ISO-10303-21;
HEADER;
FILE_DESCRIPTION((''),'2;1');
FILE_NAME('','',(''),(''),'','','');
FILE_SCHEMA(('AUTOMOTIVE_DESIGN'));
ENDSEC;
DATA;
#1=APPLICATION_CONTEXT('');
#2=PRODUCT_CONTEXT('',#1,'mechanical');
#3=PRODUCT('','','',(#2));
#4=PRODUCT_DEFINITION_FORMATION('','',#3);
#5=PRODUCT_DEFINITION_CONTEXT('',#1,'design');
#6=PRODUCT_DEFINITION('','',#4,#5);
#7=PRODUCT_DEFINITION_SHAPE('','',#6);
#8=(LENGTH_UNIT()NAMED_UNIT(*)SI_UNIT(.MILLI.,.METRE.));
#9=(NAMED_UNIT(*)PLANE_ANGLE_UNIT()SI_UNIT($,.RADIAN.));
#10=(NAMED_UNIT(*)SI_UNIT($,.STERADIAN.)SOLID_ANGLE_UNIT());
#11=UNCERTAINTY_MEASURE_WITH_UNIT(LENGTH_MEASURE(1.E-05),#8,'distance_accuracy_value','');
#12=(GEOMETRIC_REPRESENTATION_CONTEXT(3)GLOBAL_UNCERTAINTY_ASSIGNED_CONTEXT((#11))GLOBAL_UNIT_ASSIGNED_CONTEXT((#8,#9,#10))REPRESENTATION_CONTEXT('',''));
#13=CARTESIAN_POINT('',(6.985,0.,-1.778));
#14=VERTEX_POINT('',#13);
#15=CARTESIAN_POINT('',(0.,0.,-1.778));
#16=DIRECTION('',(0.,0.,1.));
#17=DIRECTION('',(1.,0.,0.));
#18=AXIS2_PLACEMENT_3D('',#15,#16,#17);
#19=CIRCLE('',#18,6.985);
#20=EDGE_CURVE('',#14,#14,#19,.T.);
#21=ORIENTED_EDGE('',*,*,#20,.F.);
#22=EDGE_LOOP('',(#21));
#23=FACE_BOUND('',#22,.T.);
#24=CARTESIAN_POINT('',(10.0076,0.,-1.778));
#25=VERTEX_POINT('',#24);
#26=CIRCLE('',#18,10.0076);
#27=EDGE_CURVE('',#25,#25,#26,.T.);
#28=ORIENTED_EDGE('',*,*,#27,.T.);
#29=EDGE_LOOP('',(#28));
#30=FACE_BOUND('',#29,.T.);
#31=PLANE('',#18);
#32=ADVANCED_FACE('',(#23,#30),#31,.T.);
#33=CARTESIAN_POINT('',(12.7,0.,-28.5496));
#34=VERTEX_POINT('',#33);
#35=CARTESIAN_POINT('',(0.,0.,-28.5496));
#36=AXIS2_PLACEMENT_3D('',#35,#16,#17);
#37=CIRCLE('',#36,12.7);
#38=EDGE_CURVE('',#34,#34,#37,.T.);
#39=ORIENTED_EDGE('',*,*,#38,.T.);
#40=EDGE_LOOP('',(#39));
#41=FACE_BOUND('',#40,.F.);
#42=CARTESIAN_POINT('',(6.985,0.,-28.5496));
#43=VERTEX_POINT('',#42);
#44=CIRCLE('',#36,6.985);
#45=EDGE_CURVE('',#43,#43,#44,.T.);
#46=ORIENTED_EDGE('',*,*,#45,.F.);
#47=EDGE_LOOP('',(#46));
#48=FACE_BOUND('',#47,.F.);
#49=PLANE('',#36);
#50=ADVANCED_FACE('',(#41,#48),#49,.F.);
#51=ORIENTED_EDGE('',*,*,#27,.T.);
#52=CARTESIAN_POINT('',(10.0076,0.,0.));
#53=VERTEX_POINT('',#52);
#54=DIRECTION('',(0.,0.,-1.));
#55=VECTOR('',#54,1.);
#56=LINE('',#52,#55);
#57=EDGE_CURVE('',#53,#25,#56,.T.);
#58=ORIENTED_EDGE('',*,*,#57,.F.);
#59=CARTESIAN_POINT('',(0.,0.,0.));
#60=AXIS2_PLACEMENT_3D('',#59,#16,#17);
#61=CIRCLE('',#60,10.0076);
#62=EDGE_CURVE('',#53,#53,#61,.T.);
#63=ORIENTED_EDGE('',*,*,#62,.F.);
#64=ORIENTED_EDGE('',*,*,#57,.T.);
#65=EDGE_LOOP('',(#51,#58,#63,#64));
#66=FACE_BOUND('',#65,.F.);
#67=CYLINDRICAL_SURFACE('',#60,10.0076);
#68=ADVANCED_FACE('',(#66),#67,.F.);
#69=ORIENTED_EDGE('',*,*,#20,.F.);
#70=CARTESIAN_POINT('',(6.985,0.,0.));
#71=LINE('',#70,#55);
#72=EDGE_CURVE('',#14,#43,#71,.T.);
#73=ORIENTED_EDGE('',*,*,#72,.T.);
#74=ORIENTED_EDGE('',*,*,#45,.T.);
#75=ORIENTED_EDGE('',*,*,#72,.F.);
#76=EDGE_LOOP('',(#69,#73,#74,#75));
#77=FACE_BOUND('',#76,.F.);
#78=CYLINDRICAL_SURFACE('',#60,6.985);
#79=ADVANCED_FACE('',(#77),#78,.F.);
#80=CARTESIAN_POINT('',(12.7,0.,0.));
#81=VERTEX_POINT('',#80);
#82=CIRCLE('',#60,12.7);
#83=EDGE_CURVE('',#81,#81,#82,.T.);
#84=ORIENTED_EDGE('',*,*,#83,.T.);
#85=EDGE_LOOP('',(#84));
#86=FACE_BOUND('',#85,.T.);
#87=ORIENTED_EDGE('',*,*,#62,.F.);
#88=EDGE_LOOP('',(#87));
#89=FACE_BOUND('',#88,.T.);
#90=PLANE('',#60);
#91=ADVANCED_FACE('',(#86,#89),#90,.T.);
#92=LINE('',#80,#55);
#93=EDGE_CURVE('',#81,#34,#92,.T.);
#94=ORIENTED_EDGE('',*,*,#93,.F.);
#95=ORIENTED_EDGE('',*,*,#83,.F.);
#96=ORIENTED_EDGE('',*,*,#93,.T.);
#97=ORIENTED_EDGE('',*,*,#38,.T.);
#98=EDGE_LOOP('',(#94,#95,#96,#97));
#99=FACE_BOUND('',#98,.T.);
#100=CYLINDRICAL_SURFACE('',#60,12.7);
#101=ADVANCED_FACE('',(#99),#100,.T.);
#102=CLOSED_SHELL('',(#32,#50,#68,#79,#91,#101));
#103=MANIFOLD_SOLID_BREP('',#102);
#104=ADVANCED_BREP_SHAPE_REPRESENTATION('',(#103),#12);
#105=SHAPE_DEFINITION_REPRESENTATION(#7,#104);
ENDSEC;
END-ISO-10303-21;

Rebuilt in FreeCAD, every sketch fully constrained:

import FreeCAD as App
import Part
import Sketcher
Q = App.Units.Quantity

doc = App.newDocument("Part")
body = doc.addObject("PartDesign::Body", "Body")

# Sketch on XY plane
sketch1 = body.newObject("Sketcher::SketchObject", "Sketch")
sketch1.AttachmentSupport = (doc.getObject("XY_Plane"), [""])
sketch1.MapMode = "FlatFace"
sketch1.addGeometry([
    Part.Circle(App.Vector(0, 0, 0), App.Vector(0, 0, 1), 12.7),
    Part.Circle(App.Vector(0, 0, 0), App.Vector(0, 0, 1), 6.985),
], False)
sketch1.addConstraint([
    Sketcher.Constraint("Coincident", 0, 3, -1, 1),
    Sketcher.Constraint("Coincident", 1, 3, -1, 1),
    Sketcher.Constraint("Diameter", 0, Q("1 in")),
    Sketcher.Constraint("Diameter", 1, Q("0.55 in")),
])
pad1 = body.newObject("PartDesign::Pad", "Pad")
pad1.Profile = sketch1
pad1.Length = Q("1.124 in")
pad1.Reversed = True

# Sketch on XY plane
sketch2 = body.newObject("Sketcher::SketchObject", "Sketch001")
sketch2.AttachmentSupport = (doc.getObject("XY_Plane"), [""])
sketch2.MapMode = "FlatFace"
sketch2.addGeometry([
    Part.Circle(App.Vector(0, 0, 0), App.Vector(0, 0, 1), 10.0076),
    Part.Circle(App.Vector(0, 0, 0), App.Vector(0, 0, 1), 6.985),
], False)
sketch2.addConstraint([
    Sketcher.Constraint("Coincident", 0, 3, -1, 1),
    Sketcher.Constraint("Coincident", 1, 3, -1, 1),
    Sketcher.Constraint("Diameter", 1, Q("0.55 in")),
    Sketcher.Constraint("Diameter", 0, Q("0.788 in")),
])
pocket1 = body.newObject("PartDesign::Pocket", "Pocket")
pocket1.Profile = sketch2
pocket1.Length = Q("0.07 in")

doc.recompute()
